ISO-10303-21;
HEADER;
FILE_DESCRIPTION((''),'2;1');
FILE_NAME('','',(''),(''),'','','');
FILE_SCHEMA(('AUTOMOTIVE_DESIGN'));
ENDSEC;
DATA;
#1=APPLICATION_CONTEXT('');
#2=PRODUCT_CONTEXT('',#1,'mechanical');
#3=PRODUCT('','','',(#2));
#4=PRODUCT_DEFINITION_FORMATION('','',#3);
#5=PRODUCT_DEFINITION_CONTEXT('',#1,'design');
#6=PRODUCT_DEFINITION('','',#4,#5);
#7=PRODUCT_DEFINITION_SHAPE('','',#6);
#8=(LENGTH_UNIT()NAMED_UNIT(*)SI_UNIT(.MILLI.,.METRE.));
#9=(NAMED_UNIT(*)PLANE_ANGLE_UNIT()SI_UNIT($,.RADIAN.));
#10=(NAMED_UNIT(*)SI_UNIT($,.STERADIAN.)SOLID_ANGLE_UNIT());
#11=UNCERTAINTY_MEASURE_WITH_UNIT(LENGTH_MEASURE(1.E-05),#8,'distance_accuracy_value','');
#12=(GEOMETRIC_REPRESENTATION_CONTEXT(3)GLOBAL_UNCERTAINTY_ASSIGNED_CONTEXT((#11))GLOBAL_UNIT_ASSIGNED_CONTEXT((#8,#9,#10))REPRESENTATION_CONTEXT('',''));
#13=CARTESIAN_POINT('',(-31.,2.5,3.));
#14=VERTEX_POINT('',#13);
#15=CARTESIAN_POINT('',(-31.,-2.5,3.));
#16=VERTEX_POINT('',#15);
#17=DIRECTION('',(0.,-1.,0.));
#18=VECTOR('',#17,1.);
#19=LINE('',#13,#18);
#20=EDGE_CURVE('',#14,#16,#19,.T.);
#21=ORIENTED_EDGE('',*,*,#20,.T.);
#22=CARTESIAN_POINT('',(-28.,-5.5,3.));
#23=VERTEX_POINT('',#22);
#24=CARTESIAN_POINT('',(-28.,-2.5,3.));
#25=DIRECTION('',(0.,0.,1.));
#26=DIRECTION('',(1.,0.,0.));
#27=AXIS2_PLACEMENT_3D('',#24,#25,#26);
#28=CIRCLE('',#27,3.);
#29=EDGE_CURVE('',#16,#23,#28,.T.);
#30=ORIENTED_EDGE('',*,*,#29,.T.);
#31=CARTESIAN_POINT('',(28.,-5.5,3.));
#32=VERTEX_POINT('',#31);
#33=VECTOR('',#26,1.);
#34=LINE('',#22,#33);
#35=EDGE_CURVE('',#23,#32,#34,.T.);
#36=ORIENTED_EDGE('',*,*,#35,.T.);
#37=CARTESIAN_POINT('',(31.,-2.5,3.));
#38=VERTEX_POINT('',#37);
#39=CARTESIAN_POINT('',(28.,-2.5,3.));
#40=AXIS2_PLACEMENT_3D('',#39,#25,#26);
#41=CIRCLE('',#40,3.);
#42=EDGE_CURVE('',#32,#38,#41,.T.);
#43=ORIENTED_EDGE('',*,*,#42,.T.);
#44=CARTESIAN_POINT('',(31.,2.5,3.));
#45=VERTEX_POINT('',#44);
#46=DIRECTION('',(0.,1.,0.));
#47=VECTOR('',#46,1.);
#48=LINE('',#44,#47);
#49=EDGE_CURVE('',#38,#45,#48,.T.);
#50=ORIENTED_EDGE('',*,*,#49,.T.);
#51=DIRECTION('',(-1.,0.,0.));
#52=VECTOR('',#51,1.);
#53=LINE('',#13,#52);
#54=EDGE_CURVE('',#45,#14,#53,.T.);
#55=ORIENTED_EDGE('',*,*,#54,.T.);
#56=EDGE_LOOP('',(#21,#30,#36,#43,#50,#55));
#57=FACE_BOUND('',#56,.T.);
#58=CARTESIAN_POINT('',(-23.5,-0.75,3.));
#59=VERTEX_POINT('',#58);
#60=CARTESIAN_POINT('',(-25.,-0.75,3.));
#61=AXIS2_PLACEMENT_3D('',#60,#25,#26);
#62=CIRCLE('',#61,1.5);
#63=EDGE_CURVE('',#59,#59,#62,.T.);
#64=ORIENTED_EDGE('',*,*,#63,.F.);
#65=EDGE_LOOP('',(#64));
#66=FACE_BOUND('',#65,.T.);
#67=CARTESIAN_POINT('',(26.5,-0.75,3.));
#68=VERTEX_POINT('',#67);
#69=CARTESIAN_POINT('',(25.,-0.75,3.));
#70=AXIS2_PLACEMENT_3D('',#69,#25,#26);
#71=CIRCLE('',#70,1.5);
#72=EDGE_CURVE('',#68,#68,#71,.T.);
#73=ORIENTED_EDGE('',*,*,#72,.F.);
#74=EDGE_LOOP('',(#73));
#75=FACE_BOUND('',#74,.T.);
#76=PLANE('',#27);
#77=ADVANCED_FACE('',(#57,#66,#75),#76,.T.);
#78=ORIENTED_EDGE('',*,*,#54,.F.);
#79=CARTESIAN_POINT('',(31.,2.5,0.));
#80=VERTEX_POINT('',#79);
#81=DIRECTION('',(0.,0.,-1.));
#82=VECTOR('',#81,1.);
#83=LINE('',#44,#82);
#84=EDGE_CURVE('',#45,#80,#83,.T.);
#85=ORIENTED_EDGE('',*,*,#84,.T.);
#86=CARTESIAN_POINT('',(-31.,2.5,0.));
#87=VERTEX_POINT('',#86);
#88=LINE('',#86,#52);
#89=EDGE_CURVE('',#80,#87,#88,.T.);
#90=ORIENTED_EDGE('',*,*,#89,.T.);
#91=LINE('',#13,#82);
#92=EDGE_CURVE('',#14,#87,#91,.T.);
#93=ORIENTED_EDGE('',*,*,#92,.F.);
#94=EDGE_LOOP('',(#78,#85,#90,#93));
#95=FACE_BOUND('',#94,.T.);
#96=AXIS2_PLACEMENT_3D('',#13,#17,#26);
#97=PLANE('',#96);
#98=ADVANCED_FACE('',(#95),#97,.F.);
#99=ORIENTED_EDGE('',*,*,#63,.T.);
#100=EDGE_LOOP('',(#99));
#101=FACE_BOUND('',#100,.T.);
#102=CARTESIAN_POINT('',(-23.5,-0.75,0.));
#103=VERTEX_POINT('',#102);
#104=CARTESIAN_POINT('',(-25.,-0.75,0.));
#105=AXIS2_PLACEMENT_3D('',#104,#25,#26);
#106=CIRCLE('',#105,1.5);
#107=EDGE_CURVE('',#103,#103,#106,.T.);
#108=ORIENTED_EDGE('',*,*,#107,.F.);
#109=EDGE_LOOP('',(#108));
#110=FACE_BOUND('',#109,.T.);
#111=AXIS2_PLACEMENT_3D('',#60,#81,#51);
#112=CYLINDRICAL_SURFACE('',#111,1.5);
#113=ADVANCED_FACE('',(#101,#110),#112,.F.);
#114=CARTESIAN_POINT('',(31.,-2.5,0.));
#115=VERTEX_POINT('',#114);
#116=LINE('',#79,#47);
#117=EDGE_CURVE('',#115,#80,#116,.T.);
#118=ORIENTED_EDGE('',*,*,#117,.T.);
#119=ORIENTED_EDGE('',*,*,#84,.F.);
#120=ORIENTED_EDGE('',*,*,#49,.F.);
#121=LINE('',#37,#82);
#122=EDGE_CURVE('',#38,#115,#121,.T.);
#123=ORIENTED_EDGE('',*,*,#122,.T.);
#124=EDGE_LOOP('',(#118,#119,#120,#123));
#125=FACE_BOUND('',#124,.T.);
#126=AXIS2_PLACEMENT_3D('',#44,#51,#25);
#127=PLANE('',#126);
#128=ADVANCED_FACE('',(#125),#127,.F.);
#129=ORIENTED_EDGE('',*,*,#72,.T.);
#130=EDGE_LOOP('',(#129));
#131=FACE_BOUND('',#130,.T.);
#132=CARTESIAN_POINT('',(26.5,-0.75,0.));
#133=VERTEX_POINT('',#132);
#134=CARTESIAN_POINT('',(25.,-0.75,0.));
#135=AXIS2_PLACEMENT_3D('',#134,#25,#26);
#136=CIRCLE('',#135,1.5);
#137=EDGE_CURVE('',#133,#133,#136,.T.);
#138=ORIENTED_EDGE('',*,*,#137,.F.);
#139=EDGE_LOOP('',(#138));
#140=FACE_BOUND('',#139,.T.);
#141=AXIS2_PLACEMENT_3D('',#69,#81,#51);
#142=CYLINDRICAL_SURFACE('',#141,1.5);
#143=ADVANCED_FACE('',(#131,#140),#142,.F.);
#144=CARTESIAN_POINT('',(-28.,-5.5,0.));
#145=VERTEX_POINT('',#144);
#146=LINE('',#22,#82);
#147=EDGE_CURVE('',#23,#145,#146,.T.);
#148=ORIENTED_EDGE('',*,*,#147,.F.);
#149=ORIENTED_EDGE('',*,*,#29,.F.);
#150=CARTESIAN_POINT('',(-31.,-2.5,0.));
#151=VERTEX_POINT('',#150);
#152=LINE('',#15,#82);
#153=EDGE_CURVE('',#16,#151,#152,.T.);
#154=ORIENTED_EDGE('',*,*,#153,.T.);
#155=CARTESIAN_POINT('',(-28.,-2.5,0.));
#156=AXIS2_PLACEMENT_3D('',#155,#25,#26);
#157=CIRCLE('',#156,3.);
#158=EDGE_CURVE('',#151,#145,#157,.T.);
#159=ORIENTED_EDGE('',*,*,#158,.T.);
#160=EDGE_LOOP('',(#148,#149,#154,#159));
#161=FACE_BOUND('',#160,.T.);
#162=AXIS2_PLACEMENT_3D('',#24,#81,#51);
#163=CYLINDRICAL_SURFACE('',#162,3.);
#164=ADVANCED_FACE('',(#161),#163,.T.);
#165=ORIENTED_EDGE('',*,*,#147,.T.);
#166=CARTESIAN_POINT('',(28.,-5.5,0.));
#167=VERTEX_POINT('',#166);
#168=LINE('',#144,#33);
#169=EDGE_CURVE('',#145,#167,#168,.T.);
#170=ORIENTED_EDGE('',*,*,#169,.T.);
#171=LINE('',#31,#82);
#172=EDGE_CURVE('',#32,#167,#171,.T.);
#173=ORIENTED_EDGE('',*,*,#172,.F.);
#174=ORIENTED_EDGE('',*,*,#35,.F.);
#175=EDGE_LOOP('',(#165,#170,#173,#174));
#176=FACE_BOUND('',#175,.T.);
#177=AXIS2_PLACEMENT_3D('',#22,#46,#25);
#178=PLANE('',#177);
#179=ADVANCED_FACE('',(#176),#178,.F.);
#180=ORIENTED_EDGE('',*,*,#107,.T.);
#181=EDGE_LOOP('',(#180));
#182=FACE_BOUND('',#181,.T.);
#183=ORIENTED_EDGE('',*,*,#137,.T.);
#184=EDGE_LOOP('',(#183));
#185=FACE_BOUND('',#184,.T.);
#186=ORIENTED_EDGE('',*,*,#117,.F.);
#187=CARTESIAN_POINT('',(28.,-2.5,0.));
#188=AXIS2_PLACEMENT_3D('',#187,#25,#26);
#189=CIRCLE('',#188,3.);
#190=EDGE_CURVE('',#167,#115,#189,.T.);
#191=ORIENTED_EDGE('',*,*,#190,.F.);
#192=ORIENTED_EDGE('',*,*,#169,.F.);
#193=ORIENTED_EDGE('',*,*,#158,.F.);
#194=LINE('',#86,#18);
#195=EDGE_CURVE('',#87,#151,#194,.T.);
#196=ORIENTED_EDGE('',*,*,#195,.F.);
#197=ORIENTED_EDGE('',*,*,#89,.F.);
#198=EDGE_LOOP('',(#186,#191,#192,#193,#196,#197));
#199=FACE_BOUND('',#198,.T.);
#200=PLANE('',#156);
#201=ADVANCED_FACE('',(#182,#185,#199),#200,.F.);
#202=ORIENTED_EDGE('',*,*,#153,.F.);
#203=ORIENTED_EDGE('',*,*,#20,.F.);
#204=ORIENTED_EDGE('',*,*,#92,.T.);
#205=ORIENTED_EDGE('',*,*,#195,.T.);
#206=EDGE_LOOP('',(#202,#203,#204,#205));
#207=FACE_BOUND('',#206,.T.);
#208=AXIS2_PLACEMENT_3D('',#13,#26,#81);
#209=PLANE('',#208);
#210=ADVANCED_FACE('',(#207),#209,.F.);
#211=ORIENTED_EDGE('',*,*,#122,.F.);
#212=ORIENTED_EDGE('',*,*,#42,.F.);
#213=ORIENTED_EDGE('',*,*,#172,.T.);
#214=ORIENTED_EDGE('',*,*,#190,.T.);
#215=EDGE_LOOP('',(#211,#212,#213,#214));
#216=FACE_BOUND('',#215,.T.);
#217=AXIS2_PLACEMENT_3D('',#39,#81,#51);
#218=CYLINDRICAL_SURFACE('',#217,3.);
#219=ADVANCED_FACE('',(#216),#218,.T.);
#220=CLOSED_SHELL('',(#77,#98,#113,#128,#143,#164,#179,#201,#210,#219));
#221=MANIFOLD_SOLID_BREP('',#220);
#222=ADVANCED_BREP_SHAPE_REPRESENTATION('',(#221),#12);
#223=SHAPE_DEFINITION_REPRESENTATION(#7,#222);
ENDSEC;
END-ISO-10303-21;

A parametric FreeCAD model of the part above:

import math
import FreeCAD as App
import Part
import Sketcher

doc = App.newDocument("Part")
body = doc.addObject("PartDesign::Body", "Body")

# Sketch on XY plane
sketch1 = body.newObject("Sketcher::SketchObject", "Sketch")
sketch1.AttachmentSupport = (doc.getObject("XY_Plane"), [""])
sketch1.MapMode = "FlatFace"
sketch1.addGeometry([
    Part.LineSegment(App.Vector(31, 2.5, 0), App.Vector(-31, 2.5, 0)),  # 0
    Part.LineSegment(App.Vector(-31, 2.5, 0), App.Vector(-31, -2.5, 0)),  # 1
    Part.ArcOfCircle(Part.Circle(App.Vector(-28, -2.5, 0), App.Vector(0, 0, 1), 3), math.radians(180), math.radians(270)),  # 2
    Part.LineSegment(App.Vector(-28, -5.5, 0), App.Vector(28, -5.5, 0)),  # 3
    Part.ArcOfCircle(Part.Circle(App.Vector(28, -2.5, 0), App.Vector(0, 0, 1), 3), math.radians(-90), math.radians(0)),  # 4
    Part.LineSegment(App.Vector(31, -2.5, 0), App.Vector(31, 2.5, 0)),  # 5
    Part.Circle(App.Vector(25, -0.75, 0), App.Vector(0, 0, 1), 1.5),  # 6
    Part.Circle(App.Vector(-25, -0.75, 0), App.Vector(0, 0, 1), 1.5),  # 7
], False)
sketch1.addConstraint([
    Sketcher.Constraint("Coincident", 0, 2, 1, 1),
    Sketcher.Constraint("Tangent", 1, 2, 2, 1),
    Sketcher.Constraint("Tangent", 2, 2, 3, 1),
    Sketcher.Constraint("Tangent", 3, 2, 4, 1),
    Sketcher.Constraint("Tangent", 4, 2, 5, 1),
    Sketcher.Constraint("Coincident", 5, 2, 0, 1),
    Sketcher.Constraint("Horizontal", 0),
    Sketcher.Constraint("Vertical", 1),
    Sketcher.Constraint("Horizontal", 3),
    Sketcher.Constraint("Vertical", 5),
    Sketcher.Constraint("Equal", 2, 4),
    Sketcher.Constraint("Equal", 6, 7),
    Sketcher.Constraint("Symmetric", 0, 2, 4, 2, -1, 1),
    Sketcher.Constraint("Symmetric", 6, 3, 7, 3, -2),
    Sketcher.Constraint("Diameter", 6, 3.0),
    Sketcher.Constraint("Radius", 2, 3.0),
    Sketcher.Constraint("DistanceX", 0, 2, 0, 1, 62.0),
    Sketcher.Constraint("DistanceY", 1, 2, 1, 1, 5.0),
    Sketcher.Constraint("DistanceX", -1, 1, 6, 3, 25.0),
    Sketcher.Constraint("DistanceY", 6, 3, -1, 1, 0.75),
])
pad1 = body.newObject("PartDesign::Pad", "Pad")
pad1.Profile = sketch1
pad1.Length = 3

doc.recompute()
